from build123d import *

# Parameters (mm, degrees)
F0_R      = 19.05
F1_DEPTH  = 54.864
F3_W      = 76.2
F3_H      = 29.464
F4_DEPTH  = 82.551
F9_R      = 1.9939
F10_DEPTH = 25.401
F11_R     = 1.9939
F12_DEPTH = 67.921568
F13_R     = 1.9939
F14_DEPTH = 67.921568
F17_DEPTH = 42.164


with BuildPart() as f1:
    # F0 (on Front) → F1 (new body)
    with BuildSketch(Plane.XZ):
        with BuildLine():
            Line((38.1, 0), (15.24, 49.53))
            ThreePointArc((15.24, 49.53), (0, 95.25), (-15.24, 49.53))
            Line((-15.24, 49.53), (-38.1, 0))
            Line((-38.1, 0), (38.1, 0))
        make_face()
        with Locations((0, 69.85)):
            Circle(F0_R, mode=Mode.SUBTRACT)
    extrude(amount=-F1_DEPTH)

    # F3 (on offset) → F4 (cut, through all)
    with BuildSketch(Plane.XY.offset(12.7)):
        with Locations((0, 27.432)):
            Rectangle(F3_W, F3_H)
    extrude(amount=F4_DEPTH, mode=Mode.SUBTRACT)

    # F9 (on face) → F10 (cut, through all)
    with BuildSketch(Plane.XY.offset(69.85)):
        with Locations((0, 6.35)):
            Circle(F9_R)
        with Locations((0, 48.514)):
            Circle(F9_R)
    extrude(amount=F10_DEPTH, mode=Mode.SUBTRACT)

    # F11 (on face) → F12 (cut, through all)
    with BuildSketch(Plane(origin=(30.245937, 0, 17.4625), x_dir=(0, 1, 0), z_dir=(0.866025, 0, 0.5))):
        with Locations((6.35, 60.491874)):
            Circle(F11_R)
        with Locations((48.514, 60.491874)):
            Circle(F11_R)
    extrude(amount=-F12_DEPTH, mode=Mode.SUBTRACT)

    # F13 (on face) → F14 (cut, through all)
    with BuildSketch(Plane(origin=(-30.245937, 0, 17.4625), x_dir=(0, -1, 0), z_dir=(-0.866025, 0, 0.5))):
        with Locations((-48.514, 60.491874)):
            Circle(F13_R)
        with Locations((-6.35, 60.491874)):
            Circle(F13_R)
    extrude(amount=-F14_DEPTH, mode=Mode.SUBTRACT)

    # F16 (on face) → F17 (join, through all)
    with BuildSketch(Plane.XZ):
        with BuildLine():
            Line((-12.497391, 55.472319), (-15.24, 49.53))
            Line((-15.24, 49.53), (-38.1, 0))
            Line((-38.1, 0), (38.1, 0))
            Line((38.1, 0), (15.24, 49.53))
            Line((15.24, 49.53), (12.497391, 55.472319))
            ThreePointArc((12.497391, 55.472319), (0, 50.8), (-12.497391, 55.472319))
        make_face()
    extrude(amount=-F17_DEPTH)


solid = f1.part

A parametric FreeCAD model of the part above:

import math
import FreeCAD as App
import Part
import Sketcher
from FreeCAD import Vector
Q = App.Units.Quantity

doc = App.newDocument("Part")
params = doc.addObject("Spreadsheet::Sheet", "Params")
for row, (alias, value) in enumerate([
    ("sketch1_radius", "1 in"),
    ("sketch1_diameter", "1.5 in"),
    ("sketch1_width", "3 in"),
    ("pad1_length", "2.16 in"),
    ("sketch2_width", "3 in"),
    ("sketch2_height", "1.16 in"),
    ("sketch3_diameter", "0.157 in"),
    ("sketch4_diameter", "0.157 in"),
    ("sketch5_diameter", "0.157 in"),
    ("sketch6_width", "3 in"),
    ("sketch6_radius", "0.75 in"),
], start=1):
    params.set(f"A{row}", alias)
    params.set(f"B{row}", "=" + value)
    params.setAlias(f"B{row}", alias)

body = doc.addObject("PartDesign::Body", "Body")

# Sketch on XZ plane
sketch1 = body.newObject("Sketcher::SketchObject", "Sketch")
sketch1.AttachmentSupport = (doc.getObject("XZ_Plane"), [""])
sketch1.MapMode = "FlatFace"
sketch1.addGeometry([
    Part.LineSegment(Vector(38, 0, 0), Vector(15, 50, 0)),  # 0
    Part.ArcOfCircle(Part.Circle(Vector(0, 70, 0), Vector(0, 0, 1), 25), math.radians(-53), math.radians(233)),  # 1
    Part.LineSegment(Vector(-15, 50, 0), Vector(-38, 0, 0)),  # 2
    Part.LineSegment(Vector(-38, 0, 0), Vector(38, 0, 0)),  # 3
    Part.Circle(Vector(0, 70, 0), Vector(0, 0, 1), 19),  # 4
], False)
sketch1.addConstraint([
    Sketcher.Constraint("Coincident", 0, 2, 1, 1),
    Sketcher.Constraint("Coincident", 1, 2, 2, 1),
    Sketcher.Constraint("Coincident", 2, 2, 3, 1),
    Sketcher.Constraint("Coincident", 3, 2, 0, 1),
    Sketcher.Constraint("Horizontal", 3),
    Sketcher.Constraint("Coincident", 4, 3, 1, 3),
    Sketcher.Constraint("Symmetric", 2, 2, 3, 2, -1, 1),
    Sketcher.Constraint("Symmetric", 0, 2, 1, 2, -2),
    Sketcher.Constraint("Radius", 1, Q("1 in")),
    Sketcher.Constraint("Diameter", 4, Q("1.5 in")),
    Sketcher.Constraint("DistanceX", 3, 1, 3, 2, Q("3 in")),
    Sketcher.Constraint("DistanceX", -1, 1, 0, 2, Q("0.6 in")),
    Sketcher.Constraint("DistanceY", -1, 1, 1, 3, Q("2.75 in")),
])
sketch1.setExpression("Constraints[8]", "Params.sketch1_radius")
sketch1.setExpression("Constraints[9]", "Params.sketch1_diameter")
sketch1.setExpression("Constraints[10]", "Params.sketch1_width")
pad1 = body.newObject("PartDesign::Pad", "Pad")
pad1.Profile = sketch1
pad1.setExpression("Length", "Params.pad1_length")
pad1.Reversed = True

# Sketch on XY plane
sketch2 = body.newObject("Sketcher::SketchObject", "Sketch001")
sketch2.AttachmentSupport = (doc.getObject("XY_Plane"), [""])
sketch2.MapMode = "FlatFace"
sketch2.AttachmentOffset = App.Placement(Vector(0, 0, 0.5 * 25.4), App.Rotation())
sketch2.addGeometry([
    Part.LineSegment(Vector(-38, 42, 0), Vector(-38, 13, 0)),
    Part.LineSegment(Vector(-38, 13, 0), Vector(38, 13, 0)),
    Part.LineSegment(Vector(38, 13, 0), Vector(38, 42, 0)),
    Part.LineSegment(Vector(38, 42, 0), Vector(-38, 42, 0)),
], False)
sketch2.addConstraint([
    Sketcher.Constraint("Coincident", 0, 2, 1, 1),
    Sketcher.Constraint("Coincident", 1, 2, 2, 1),
    Sketcher.Constraint("Coincident", 2, 2, 3, 1),
    Sketcher.Constraint("Coincident", 3, 2, 0, 1),
    Sketcher.Constraint("Vertical", 0),
    Sketcher.Constraint("Horizontal", 1),
    Sketcher.Constraint("Vertical", 2),
    Sketcher.Constraint("Horizontal", 3),
    Sketcher.Constraint("DistanceX", 1, 1, 1, 2, Q("3 in")),
    Sketcher.Constraint("DistanceY", 0, 2, 0, 1, Q("1.16 in")),
    Sketcher.Constraint("DistanceX", 0, 2, -1, 1, Q("1.5 in")),
    Sketcher.Constraint("DistanceY", -1, 1, 0, 2, Q("0.5 in")),
])
sketch2.setExpression("Constraints[8]", "Params.sketch2_width")
sketch2.setExpression("Constraints[9]", "Params.sketch2_height")
pocket1 = body.newObject("PartDesign::Pocket", "Pocket")
pocket1.Profile = sketch2
pocket1.Type = "ThroughAll"
pocket1.Reversed = True

# Sketch on XY plane
sketch3 = body.newObject("Sketcher::SketchObject", "Sketch002")
sketch3.AttachmentSupport = (doc.getObject("XY_Plane"), [""])
sketch3.MapMode = "FlatFace"
sketch3.AttachmentOffset = App.Placement(Vector(0, 0, 2.75 * 25.4), App.Rotation())
sketch3.addGeometry([
    Part.Circle(Vector(0, 6.3, 0), Vector(0, 0, 1), 2),
    Part.Circle(Vector(0, 48.5, 0), Vector(0, 0, 1), 2),
], False)
sketch3.addConstraint([
    Sketcher.Constraint("Equal", 0, 1),
    Sketcher.Constraint("PointOnObject", 0, 3, -2),
    Sketcher.Constraint("PointOnObject", 1, 3, -2),
    Sketcher.Constraint("Diameter", 0, Q("0.157 in")),
    Sketcher.Constraint("DistanceY", -1, 1, 0, 3, Q("0.25 in")),
    Sketcher.Constraint("DistanceY", -1, 1, 1, 3, Q("1.91 in")),
])
sketch3.setExpression("Constraints[3]", "Params.sketch3_diameter")
pocket2 = body.newObject("PartDesign::Pocket", "Pocket001")
pocket2.Profile = sketch3
pocket2.Type = "ThroughAll"
pocket2.Reversed = True

# Sketch on an angled plane
sketch4 = body.newObject("Sketcher::SketchObject", "Sketch003")
sketch4.Placement = App.Placement(Vector(30.245937, 0, 17.4625), App.Rotation(Vector(0, 1, 0), Vector(-0.500000175, 0, 0.866025303), Vector(0.866025303, 0, 0.500000175), "ZXY"))
sketch4.addGeometry([
    Part.Circle(Vector(6.3, 60.5, 0), Vector(0, 0, 1), 2),
    Part.Circle(Vector(48.5, 60.5, 0), Vector(0, 0, 1), 2),
], False)
sketch4.addConstraint([
    Sketcher.Constraint("Equal", 0, 1),
    Sketcher.Constraint("Horizontal", 0, 3, 1, 3),
    Sketcher.Constraint("Diameter", 0, Q("0.157 in")),
    Sketcher.Constraint("DistanceX", -1, 1, 0, 3, Q("0.25 in")),
    Sketcher.Constraint("DistanceX", -1, 1, 1, 3, Q("1.91 in")),
    Sketcher.Constraint("DistanceY", -1, 1, 0, 3, 60.491874),
])
sketch4.setExpression("Constraints[2]", "Params.sketch4_diameter")
pocket3 = body.newObject("PartDesign::Pocket", "Pocket002")
pocket3.Profile = sketch4
pocket3.Type = "ThroughAll"

# Sketch on an angled plane
sketch5 = body.newObject("Sketcher::SketchObject", "Sketch004")
sketch5.Placement = App.Placement(Vector(-30.245937, 0, 17.4625), App.Rotation(Vector(0, -1, 0), Vector(0.500000175, 0, 0.866025303), Vector(-0.866025303, 0, 0.500000175), "ZXY"))
sketch5.addGeometry([
    Part.Circle(Vector(-48.5, 60.5, 0), Vector(0, 0, 1), 2),
    Part.Circle(Vector(-6.3, 60.5, 0), Vector(0, 0, 1), 2),
], False)
sketch5.addConstraint([
    Sketcher.Constraint("Equal", 0, 1),
    Sketcher.Constraint("Horizontal", 0, 3, 1, 3),
    Sketcher.Constraint("Diameter", 0, Q("0.157 in")),
    Sketcher.Constraint("DistanceX", 0, 3, -1, 1, Q("1.91 in")),
    Sketcher.Constraint("DistanceX", 1, 3, -1, 1, Q("0.25 in")),
    Sketcher.Constraint("DistanceY", -1, 1, 0, 3, 60.491874),
])
sketch5.setExpression("Constraints[2]", "Params.sketch5_diameter")
pocket4 = body.newObject("PartDesign::Pocket", "Pocket003")
pocket4.Profile = sketch5
pocket4.Type = "ThroughAll"

# Sketch on XZ plane
sketch6 = body.newObject("Sketcher::SketchObject", "Sketch005")
sketch6.AttachmentSupport = (doc.getObject("XZ_Plane"), [""])
sketch6.MapMode = "FlatFace"
sketch6.addGeometry([
    Part.LineSegment(Vector(-12, 55, 0), Vector(-15, 50, 0)),  # 0
    Part.LineSegment(Vector(-15, 50, 0), Vector(-38, 0, 0)),  # 1
    Part.LineSegment(Vector(-38, 0, 0), Vector(38, 0, 0)),  # 2
    Part.LineSegment(Vector(38, 0, 0), Vector(15, 50, 0)),  # 3
    Part.LineSegment(Vector(15, 50, 0), Vector(12, 55, 0)),  # 4
    Part.ArcOfCircle(Part.Circle(Vector(0, 70, 0), Vector(0, 0, 1), 19), math.radians(-131), math.radians(-49)),  # 5
], False)
sketch6.addConstraint([
    Sketcher.Constraint("Coincident", 0, 2, 1, 1),
    Sketcher.Constraint("Coincident", 1, 2, 2, 1),
    Sketcher.Constraint("Coincident", 2, 2, 3, 1),
    Sketcher.Constraint("Coincident", 3, 2, 4, 1),
    Sketcher.Constraint("Coincident", 4, 2, 5, 2),
    Sketcher.Constraint("Coincident", 5, 1, 0, 1),
    Sketcher.Constraint("Horizontal", 2),
    Sketcher.Constraint("Symmetric", 1, 2, 2, 2, -1, 1),
    Sketcher.Constraint("Symmetric", 0, 2, 3, 2, -2),
    Sketcher.Constraint("Symmetric", 4, 2, 5, 1, -2),
    Sketcher.Constraint("Parallel", 0, 1),
    Sketcher.Constraint("DistanceX", 2, 1, 2, 2, Q("3 in")),
    Sketcher.Constraint("Radius", 5, Q("0.75 in")),
    Sketcher.Constraint("DistanceX", 0, 2, -1, 1, Q("0.6 in")),
    Sketcher.Constraint("DistanceY", 0, 2, 5, 3, Q("0.8 in")),
    Sketcher.Constraint("DistanceY", -1, 1, 5, 3, Q("2.75 in")),
])
sketch6.setExpression("Constraints[11]", "Params.sketch6_width")
sketch6.setExpression("Constraints[12]", "Params.sketch6_radius")
pad2 = body.newObject("PartDesign::Pad", "Pad001")
pad2.Profile = sketch6
pad2.Type = "UpToLast"
pad2.Reversed = True

doc.recompute()
